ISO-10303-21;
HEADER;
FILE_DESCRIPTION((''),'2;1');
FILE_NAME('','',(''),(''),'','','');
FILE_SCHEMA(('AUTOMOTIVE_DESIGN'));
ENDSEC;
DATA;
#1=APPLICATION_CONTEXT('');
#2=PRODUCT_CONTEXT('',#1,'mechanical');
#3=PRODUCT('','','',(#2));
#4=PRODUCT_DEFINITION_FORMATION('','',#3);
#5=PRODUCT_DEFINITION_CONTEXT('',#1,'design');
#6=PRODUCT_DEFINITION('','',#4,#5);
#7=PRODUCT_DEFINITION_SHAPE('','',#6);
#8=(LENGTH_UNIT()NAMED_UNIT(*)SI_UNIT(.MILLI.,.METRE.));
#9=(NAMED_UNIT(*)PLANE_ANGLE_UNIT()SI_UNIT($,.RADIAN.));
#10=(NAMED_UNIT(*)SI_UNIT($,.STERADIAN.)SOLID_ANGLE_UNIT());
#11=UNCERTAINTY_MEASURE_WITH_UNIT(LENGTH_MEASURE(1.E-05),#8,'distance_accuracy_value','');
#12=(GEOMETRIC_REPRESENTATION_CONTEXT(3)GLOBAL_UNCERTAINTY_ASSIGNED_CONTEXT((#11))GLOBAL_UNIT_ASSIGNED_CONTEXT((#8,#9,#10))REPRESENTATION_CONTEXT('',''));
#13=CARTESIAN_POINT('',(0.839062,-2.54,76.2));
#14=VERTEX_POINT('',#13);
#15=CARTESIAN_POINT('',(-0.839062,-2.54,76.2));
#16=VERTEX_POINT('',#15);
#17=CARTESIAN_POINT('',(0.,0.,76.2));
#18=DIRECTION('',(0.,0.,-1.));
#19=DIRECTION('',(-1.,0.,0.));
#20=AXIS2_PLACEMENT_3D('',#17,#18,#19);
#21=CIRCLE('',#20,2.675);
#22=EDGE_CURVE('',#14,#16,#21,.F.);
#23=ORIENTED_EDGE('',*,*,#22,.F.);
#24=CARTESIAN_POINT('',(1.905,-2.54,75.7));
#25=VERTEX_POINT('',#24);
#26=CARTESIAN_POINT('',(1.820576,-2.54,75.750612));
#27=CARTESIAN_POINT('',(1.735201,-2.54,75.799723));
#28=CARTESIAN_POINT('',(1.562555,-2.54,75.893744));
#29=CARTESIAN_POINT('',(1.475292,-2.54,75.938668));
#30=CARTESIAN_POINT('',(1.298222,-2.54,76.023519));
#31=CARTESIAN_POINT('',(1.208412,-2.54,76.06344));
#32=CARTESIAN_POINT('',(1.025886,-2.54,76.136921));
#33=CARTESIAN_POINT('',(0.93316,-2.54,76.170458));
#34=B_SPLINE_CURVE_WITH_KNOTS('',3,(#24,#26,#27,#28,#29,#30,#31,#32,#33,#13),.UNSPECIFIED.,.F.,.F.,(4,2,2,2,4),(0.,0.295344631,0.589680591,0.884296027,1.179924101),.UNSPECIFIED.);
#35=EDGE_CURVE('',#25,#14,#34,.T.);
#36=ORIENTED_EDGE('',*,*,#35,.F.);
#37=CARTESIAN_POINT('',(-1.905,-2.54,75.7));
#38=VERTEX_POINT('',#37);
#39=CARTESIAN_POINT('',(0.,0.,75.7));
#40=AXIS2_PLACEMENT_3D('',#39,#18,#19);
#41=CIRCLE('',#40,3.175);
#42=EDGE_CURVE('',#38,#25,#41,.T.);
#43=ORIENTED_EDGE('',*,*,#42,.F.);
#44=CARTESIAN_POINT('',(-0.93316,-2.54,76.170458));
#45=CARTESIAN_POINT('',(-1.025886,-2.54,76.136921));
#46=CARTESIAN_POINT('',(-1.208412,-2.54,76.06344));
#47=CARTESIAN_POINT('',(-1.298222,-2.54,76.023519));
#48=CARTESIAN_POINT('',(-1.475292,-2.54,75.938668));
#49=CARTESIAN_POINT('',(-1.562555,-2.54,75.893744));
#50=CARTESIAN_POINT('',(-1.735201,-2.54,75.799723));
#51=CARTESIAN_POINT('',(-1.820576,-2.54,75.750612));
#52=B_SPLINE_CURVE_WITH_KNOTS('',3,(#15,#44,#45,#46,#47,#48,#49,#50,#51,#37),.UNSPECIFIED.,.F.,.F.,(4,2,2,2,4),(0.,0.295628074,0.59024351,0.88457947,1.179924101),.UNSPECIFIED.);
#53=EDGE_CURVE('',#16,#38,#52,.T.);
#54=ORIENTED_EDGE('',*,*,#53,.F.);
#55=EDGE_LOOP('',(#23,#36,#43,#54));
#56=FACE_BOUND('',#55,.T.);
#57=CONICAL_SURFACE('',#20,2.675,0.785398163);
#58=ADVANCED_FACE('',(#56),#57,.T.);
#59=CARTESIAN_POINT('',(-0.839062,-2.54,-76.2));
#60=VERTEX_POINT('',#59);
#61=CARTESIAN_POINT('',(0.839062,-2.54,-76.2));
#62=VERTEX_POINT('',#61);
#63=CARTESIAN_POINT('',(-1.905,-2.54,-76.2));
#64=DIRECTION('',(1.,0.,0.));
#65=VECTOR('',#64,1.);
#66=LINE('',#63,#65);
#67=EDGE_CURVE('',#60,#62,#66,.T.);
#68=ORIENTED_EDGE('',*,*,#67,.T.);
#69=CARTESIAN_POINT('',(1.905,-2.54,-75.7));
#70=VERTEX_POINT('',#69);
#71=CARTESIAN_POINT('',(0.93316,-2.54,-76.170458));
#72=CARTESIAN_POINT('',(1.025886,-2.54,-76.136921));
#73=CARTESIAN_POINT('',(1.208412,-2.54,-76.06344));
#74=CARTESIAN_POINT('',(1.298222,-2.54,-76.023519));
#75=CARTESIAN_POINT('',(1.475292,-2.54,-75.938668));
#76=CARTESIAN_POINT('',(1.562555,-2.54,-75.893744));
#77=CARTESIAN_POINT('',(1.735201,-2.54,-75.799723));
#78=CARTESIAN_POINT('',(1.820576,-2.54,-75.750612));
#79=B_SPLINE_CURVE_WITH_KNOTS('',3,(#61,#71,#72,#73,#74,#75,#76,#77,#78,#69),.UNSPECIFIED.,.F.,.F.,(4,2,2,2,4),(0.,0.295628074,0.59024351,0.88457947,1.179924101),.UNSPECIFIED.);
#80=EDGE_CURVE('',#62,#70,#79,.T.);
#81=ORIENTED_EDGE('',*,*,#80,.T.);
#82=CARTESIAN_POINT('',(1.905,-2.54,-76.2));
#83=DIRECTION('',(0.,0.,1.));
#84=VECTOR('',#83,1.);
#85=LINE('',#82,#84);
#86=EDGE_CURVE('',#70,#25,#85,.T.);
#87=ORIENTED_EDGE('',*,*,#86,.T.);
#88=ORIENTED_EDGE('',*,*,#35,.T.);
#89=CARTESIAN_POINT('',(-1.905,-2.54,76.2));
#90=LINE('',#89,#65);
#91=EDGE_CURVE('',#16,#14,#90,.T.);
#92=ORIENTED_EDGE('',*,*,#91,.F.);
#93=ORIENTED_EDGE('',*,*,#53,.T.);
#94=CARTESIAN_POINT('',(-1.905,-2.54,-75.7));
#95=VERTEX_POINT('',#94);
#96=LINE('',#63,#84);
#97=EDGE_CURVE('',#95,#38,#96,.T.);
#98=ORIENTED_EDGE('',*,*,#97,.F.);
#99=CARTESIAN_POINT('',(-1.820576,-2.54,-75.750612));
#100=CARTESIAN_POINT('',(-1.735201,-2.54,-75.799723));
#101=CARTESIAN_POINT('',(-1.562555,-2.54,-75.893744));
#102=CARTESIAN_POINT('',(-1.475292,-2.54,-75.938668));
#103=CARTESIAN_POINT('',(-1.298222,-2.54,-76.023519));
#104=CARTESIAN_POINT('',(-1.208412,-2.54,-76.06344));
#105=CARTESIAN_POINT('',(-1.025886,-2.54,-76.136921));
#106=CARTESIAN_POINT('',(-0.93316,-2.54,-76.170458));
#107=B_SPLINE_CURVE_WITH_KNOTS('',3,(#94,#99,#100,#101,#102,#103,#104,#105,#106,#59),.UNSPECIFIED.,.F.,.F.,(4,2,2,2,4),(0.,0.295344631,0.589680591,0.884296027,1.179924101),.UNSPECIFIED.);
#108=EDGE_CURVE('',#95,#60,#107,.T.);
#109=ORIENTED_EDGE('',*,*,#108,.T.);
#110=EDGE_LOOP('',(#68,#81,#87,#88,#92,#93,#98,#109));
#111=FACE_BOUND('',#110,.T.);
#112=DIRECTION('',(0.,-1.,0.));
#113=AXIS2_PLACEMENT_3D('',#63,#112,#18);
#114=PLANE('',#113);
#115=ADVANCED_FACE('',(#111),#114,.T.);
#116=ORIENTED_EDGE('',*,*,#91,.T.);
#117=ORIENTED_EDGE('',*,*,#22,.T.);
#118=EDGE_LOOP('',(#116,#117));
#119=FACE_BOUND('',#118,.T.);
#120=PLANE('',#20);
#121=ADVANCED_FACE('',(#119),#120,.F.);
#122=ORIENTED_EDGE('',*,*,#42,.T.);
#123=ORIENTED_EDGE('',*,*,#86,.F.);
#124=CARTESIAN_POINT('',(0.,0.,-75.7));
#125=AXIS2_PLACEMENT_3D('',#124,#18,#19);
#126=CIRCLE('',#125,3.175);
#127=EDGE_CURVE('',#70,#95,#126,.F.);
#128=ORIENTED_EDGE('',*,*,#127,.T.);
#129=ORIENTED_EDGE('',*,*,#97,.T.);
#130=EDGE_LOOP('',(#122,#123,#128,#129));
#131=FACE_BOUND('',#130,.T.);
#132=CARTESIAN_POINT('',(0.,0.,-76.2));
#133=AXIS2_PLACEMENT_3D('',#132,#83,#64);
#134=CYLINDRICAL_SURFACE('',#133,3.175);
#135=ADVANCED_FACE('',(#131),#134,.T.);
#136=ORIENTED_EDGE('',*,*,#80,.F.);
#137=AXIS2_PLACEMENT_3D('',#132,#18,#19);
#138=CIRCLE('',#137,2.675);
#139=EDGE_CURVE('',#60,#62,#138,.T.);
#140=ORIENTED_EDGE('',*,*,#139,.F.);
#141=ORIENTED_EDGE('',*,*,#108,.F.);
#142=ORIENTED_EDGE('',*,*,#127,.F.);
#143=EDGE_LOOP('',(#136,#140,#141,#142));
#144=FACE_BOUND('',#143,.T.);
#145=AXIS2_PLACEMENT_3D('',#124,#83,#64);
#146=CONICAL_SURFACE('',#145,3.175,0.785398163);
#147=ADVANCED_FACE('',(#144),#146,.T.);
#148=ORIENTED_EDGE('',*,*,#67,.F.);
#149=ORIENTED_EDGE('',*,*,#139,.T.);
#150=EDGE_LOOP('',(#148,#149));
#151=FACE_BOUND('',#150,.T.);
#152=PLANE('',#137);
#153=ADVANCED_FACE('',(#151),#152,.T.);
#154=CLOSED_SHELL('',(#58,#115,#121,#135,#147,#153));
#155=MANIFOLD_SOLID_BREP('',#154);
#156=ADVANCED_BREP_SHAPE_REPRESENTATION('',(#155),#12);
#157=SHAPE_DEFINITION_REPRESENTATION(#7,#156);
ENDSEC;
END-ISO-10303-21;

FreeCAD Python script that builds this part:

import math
import FreeCAD as App
import Part
import Sketcher
Q = App.Units.Quantity


def edges_at(feature, points):
    """Names of the edges that pass closest to the given points."""
    edges = feature.Shape.Edges
    near = lambda p: min(range(len(edges)), key=lambda i: edges[i].distToShape(Part.Vertex(*p))[0])
    return sorted({f"Edge{near(p) + 1}" for p in points})

doc = App.newDocument("Part")
body = doc.addObject("PartDesign::Body", "Body")

# Sketch on XY plane
sketch1 = body.newObject("Sketcher::SketchObject", "Sketch")
sketch1.AttachmentSupport = (doc.getObject("XY_Plane"), [""])
sketch1.MapMode = "FlatFace"
sketch1.addGeometry([
    Part.LineSegment(App.Vector(-1.9, -2.5, 0), App.Vector(1.9, -2.5, 0)),
    Part.ArcOfCircle(Part.Circle(App.Vector(0, 0, 0), App.Vector(0, 0, 1), 3.2), math.radians(-53), math.radians(233)),
], False)
sketch1.addConstraint([
    Sketcher.Constraint("Coincident", 0, 1, 1, 2),
    Sketcher.Constraint("Coincident", 1, 1, 0, 2),
    Sketcher.Constraint("Horizontal", 0),
    Sketcher.Constraint("Coincident", 1, 3, -1, 1),
    Sketcher.Constraint("Radius", 1, Q("0.125 in")),
    Sketcher.Constraint("DistanceX", 0, 1, 0, 2, Q("0.15 in")),
])

# Sketch on XZ plane
sketch2 = body.newObject("Sketcher::SketchObject", "Sketch001")
sketch2.AttachmentSupport = (doc.getObject("XZ_Plane"), [""])
sketch2.MapMode = "FlatFace"
sketch2.addGeometry(Part.LineSegment(App.Vector(0, 76, 0), App.Vector(0, -76, 0)), False)
sketch2.addConstraint([
    Sketcher.Constraint("Vertical", 0),
    Sketcher.Constraint("Symmetric", 0, 1, 0, 2, -1, 1),
    Sketcher.Constraint("DistanceY", 0, 2, 0, 1, Q("6 in")),
])
doc.recompute()

additivepipe = body.newObject("PartDesign::AdditivePipe", "AdditivePipe")
additivepipe.Profile = sketch1
additivepipe.Spine = (sketch2, ["Edge1"])
doc.recompute()

chamfer = body.newObject("PartDesign::Chamfer", "Chamfer")
chamfer.Base = (additivepipe, edges_at(additivepipe, [(0, 3.175, 76.2), (0, 3.175, -76.2)]))
chamfer.Size = 0.5

doc.recompute()
